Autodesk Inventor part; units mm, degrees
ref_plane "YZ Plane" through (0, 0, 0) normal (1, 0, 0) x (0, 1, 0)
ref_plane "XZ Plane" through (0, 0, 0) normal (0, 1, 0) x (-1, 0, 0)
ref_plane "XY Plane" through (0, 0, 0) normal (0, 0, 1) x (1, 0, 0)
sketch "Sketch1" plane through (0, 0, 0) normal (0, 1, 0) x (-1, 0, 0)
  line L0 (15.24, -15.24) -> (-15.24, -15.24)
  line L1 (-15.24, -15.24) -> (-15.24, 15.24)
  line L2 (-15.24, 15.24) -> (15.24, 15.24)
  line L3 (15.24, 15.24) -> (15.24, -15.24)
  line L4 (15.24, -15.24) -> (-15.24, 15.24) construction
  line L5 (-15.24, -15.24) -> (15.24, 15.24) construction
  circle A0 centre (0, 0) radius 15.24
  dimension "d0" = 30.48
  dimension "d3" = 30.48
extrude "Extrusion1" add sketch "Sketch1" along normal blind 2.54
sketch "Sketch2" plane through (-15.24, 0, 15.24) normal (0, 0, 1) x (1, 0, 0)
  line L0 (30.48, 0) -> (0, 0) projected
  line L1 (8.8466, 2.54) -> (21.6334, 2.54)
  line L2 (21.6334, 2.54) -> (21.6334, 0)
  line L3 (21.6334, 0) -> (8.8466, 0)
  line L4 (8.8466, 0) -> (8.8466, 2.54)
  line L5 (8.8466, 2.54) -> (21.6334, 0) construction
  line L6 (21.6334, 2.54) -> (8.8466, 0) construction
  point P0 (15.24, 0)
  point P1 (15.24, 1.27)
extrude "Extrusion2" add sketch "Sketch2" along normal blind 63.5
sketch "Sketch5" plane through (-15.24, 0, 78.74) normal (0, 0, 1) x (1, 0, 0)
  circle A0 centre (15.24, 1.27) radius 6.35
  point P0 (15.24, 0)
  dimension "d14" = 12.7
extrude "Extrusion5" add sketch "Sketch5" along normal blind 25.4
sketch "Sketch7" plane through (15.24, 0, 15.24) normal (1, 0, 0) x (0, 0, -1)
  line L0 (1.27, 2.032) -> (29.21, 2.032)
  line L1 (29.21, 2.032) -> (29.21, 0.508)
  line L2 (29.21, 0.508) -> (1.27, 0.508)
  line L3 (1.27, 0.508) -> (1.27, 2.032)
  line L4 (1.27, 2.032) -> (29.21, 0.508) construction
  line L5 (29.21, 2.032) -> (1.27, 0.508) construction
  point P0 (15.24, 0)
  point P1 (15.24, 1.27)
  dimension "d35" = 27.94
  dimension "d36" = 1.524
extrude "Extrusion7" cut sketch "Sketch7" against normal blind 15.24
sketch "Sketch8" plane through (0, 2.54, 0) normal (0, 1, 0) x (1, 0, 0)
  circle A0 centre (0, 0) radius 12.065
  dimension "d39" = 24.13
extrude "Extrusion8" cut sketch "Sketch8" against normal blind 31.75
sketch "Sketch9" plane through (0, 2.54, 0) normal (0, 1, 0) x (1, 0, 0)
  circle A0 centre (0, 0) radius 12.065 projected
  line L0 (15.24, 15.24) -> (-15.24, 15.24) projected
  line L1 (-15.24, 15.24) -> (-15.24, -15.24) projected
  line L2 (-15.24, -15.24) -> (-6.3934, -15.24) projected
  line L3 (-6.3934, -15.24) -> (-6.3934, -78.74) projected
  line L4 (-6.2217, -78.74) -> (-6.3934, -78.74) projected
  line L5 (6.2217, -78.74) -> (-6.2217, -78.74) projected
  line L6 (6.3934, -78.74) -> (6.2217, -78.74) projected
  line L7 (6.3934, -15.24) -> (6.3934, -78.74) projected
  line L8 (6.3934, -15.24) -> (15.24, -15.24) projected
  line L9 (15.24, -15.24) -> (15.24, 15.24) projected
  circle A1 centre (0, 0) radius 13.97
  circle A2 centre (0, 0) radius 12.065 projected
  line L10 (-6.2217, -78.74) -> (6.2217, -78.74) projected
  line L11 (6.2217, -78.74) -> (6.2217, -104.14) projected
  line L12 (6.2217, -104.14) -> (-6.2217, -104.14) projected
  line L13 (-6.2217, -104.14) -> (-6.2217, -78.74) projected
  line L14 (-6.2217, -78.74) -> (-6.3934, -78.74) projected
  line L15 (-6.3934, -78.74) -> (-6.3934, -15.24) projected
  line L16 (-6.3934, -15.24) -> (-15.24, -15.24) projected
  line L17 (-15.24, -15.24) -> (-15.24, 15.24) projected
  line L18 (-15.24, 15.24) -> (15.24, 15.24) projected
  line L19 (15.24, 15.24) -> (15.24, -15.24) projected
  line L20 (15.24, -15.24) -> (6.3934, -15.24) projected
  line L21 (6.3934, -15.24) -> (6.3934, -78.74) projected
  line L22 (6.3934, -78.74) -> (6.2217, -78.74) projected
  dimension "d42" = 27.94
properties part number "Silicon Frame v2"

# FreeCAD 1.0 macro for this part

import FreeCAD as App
import Part
import Sketcher

V = App.Vector
Q = App.Units.Quantity

doc = App.newDocument("Part")
body = doc.addObject("PartDesign::Body", "Body")

# Sketch on XZ plane
sketch1 = body.newObject("Sketcher::SketchObject", "Sketch")
sketch1.AttachmentSupport = (doc.getObject("XZ_Plane"), [""])
sketch1.MapMode = "FlatFace"
sketch1.addGeometry([
    Part.LineSegment(V(-15, -15, 0), V(-15, 15, 0)),
    Part.LineSegment(V(-15, 15, 0), V(15, 15, 0)),
    Part.LineSegment(V(15, 15, 0), V(15, -15, 0)),
    Part.LineSegment(V(15, -15, 0), V(-15, -15, 0)),
], False)
sketch1.addConstraint([
    Sketcher.Constraint("Coincident", 0, 2, 1, 1),
    Sketcher.Constraint("Coincident", 1, 2, 2, 1),
    Sketcher.Constraint("Coincident", 2, 2, 3, 1),
    Sketcher.Constraint("Coincident", 3, 2, 0, 1),
    Sketcher.Constraint("Vertical", 0),
    Sketcher.Constraint("Horizontal", 1),
    Sketcher.Constraint("Vertical", 2),
    Sketcher.Constraint("Horizontal", 3),
    Sketcher.Constraint("Symmetric", 0, 2, 2, 2, -1, 1),
    Sketcher.Constraint("Equal", 3, 0),
    Sketcher.Constraint("DistanceX", 1, 1, 1, 2, Q("1.2 in")),
])
pad1 = body.newObject("PartDesign::Pad", "Pad")
pad1.Profile = sketch1
pad1.Length = Q("0.1 in")
pad1.Reversed = True

# Sketch on XY plane
sketch2 = body.newObject("Sketcher::SketchObject", "Sketch001")
sketch2.AttachmentSupport = (doc.getObject("XY_Plane"), [""])
sketch2.MapMode = "FlatFace"
sketch2.AttachmentOffset = App.Placement(V(0, 0, 0.6 * 25.4), App.Rotation())
sketch2.addGeometry([
    Part.LineSegment(V(-6.4, 0, 0), V(6.4, 0, 0)),
    Part.LineSegment(V(6.4, 0, 0), V(6.4, 2.5, 0)),
    Part.LineSegment(V(6.4, 2.5, 0), V(-6.4, 2.5, 0)),
    Part.LineSegment(V(-6.4, 2.5, 0), V(-6.4, 0, 0)),
], False)
sketch2.addConstraint([
    Sketcher.Constraint("Coincident", 0, 2, 1, 1),
    Sketcher.Constraint("Coincident", 1, 2, 2, 1),
    Sketcher.Constraint("Coincident", 2, 2, 3, 1),
    Sketcher.Constraint("Coincident", 3, 2, 0, 1),
    Sketcher.Constraint("Horizontal", 0),
    Sketcher.Constraint("Vertical", 1),
    Sketcher.Constraint("Horizontal", 2),
    Sketcher.Constraint("Vertical", 3),
    Sketcher.Constraint("Symmetric", 0, 2, 3, 2, -1, 1),
    Sketcher.Constraint("DistanceY", 1, 1, 1, 2, Q("0.1 in")),
    Sketcher.Constraint("DistanceX", 0, 1, 0, 2, Q("12.7868 mm")),
])
pad2 = body.newObject("PartDesign::Pad", "Pad001")
pad2.Profile = sketch2
pad2.Length = Q("2.5 in")

# Sketch on XY plane
sketch3 = body.newObject("Sketcher::SketchObject", "Sketch002")
sketch3.AttachmentSupport = (doc.getObject("XY_Plane"), [""])
sketch3.MapMode = "FlatFace"
sketch3.AttachmentOffset = App.Placement(V(0, 0, 3.1 * 25.4), App.Rotation())
sketch3.addGeometry(Part.Circle(V(0, 1, 0), V(0, 0, 1), 6), False)
sketch3.addConstraint([
    Sketcher.Constraint("PointOnObject", 0, 3, -2),
    Sketcher.Constraint("Diameter", 0, Q("0.5 in")),
    Sketcher.Constraint("DistanceY", -1, 1, 0, 3, Q("0.05 in")),
])
pad3 = body.newObject("PartDesign::Pad", "Pad002")
pad3.Profile = sketch3
pad3.Length = Q("1 in")

# Sketch on YZ plane
sketch4 = body.newObject("Sketcher::SketchObject", "Sketch003")
sketch4.AttachmentSupport = (doc.getObject("YZ_Plane"), [""])
sketch4.MapMode = "FlatFace"
sketch4.AttachmentOffset = App.Placement(V(0, 0, 0.6 * 25.4), App.Rotation())
sketch4.addGeometry([
    Part.LineSegment(V(2, -14, 0), V(2, 14, 0)),
    Part.LineSegment(V(2, 14, 0), V(0.5, 14, 0)),
    Part.LineSegment(V(0.5, 14, 0), V(0.5, -14, 0)),
    Part.LineSegment(V(0.5, -14, 0), V(2, -14, 0)),
], False)
sketch4.addConstraint([
    Sketcher.Constraint("Coincident", 0, 2, 1, 1),
    Sketcher.Constraint("Coincident", 1, 2, 2, 1),
    Sketcher.Constraint("Coincident", 2, 2, 3, 1),
    Sketcher.Constraint("Coincident", 3, 2, 0, 1),
    Sketcher.Constraint("Vertical", 0),
    Sketcher.Constraint("Horizontal", 1),
    Sketcher.Constraint("Vertical", 2),
    Sketcher.Constraint("Horizontal", 3),
    Sketcher.Constraint("DistanceY", 0, 1, 0, 2, Q("1.1 in")),
    Sketcher.Constraint("DistanceX", 1, 2, 1, 1, Q("0.06 in")),
    Sketcher.Constraint("DistanceX", -1, 1, 0, 2, Q("0.08 in")),
    Sketcher.Constraint("DistanceY", -1, 1, 0, 2, Q("0.55 in")),
])
pocket1 = body.newObject("PartDesign::Pocket", "Pocket")
pocket1.Profile = sketch4
pocket1.Length = Q("0.6 in")

# Sketch on XZ plane
sketch5 = body.newObject("Sketcher::SketchObject", "Sketch004")
sketch5.AttachmentSupport = (doc.getObject("XZ_Plane"), [""])
sketch5.MapMode = "FlatFace"
sketch5.AttachmentOffset = App.Placement(V(0, 0, -0.1 * 25.4), App.Rotation())
sketch5.addGeometry(Part.Circle(V(0, 0, 0), V(0, 0, 1), 12), False)
sketch5.addConstraint([
    Sketcher.Constraint("Coincident", 0, 3, -1, 1),
    Sketcher.Constraint("Diameter", 0, Q("0.95 in")),
])
pocket2 = body.newObject("PartDesign::Pocket", "Pocket001")
pocket2.Profile = sketch5
pocket2.Length = Q("1.25 in")
pocket2.Reversed = True

doc.recompute()
